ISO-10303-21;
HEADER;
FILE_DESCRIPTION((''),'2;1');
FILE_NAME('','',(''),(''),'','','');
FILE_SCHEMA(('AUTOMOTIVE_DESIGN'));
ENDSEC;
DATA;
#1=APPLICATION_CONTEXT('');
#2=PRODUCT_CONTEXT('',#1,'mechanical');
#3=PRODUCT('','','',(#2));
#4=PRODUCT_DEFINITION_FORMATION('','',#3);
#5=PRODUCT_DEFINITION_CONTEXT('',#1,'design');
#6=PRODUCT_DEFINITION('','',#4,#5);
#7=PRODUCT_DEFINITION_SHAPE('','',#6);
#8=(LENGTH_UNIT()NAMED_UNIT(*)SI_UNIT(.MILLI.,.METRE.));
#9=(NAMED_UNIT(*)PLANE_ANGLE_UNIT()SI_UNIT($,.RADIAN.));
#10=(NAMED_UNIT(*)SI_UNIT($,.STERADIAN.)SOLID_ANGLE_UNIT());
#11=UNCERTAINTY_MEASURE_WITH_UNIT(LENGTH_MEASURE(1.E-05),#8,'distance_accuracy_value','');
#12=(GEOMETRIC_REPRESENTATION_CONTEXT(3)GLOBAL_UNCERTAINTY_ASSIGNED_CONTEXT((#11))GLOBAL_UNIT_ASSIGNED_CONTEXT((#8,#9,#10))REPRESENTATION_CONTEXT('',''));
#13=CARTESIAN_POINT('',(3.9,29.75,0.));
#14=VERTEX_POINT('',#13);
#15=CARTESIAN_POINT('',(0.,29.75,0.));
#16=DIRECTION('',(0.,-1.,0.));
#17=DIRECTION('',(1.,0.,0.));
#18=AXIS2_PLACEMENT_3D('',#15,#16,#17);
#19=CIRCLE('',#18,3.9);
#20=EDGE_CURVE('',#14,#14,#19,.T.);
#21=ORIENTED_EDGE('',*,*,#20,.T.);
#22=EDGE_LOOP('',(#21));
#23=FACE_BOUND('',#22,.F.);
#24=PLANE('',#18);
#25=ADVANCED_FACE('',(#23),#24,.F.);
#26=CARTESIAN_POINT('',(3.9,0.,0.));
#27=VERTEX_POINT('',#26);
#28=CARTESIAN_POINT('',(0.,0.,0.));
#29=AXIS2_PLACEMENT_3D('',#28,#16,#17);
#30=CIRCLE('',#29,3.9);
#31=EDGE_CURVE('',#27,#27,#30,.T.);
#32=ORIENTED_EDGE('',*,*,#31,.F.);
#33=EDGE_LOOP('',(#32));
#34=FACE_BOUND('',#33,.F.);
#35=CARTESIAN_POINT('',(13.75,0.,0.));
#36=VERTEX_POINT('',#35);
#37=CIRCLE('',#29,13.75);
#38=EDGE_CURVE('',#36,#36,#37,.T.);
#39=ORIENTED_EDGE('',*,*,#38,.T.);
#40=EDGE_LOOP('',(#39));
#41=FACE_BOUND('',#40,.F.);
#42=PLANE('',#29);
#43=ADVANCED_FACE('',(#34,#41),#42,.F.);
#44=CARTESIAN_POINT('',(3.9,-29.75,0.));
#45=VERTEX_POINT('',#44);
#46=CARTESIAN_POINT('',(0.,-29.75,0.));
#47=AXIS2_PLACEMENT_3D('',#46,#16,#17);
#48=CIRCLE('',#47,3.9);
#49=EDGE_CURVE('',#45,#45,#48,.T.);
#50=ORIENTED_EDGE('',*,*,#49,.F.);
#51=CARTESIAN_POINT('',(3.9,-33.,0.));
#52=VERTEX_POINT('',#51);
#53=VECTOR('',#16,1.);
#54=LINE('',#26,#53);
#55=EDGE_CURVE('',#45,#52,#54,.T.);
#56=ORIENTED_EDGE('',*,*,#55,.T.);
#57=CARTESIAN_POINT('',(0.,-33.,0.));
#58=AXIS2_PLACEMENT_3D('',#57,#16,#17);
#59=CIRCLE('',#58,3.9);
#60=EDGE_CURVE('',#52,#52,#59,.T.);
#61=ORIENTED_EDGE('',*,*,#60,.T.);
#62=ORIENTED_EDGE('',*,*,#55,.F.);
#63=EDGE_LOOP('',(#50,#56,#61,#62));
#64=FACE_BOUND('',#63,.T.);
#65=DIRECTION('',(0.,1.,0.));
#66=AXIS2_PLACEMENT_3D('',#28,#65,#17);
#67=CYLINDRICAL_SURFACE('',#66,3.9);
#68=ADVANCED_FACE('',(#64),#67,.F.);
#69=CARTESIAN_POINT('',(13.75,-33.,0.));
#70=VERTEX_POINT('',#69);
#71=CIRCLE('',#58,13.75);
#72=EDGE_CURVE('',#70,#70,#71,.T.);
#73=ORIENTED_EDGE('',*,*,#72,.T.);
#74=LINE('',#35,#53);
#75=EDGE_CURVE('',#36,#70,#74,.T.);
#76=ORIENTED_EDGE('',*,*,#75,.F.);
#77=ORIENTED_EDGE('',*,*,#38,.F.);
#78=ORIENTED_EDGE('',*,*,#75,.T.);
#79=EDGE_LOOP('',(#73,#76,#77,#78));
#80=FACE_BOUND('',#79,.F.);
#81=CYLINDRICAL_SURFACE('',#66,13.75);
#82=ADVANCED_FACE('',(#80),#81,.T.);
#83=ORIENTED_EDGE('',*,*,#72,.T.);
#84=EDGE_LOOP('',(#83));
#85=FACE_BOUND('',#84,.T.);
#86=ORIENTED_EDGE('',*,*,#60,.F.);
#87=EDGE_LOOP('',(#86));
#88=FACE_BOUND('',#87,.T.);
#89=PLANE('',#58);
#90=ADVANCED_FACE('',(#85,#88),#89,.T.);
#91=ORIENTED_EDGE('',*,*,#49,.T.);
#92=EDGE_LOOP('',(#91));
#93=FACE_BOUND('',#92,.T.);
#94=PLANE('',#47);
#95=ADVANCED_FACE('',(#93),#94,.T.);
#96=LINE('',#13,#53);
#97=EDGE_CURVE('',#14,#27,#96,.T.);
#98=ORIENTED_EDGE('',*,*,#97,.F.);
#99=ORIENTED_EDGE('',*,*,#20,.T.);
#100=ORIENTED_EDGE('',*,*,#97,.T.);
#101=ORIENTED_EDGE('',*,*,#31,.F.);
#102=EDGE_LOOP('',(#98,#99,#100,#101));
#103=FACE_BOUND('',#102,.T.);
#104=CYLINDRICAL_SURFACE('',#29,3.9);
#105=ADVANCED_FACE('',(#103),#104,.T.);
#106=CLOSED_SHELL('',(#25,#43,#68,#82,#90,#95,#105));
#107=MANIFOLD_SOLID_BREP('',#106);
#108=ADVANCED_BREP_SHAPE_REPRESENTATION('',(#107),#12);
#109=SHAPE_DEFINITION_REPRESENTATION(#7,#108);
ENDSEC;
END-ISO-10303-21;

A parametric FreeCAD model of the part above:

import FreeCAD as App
import Part
import Sketcher

doc = App.newDocument("Part")
body = doc.addObject("PartDesign::Body", "Body")

# Sketch on XZ plane
sketch1 = body.newObject("Sketcher::SketchObject", "Sketch")
sketch1.AttachmentSupport = (doc.getObject("XZ_Plane"), [""])
sketch1.MapMode = "FlatFace"
sketch1.addGeometry(Part.Circle(App.Vector(0, 0, 0), App.Vector(0, 0, 1), 13.8), False)
sketch1.addGeometry(Part.Circle(App.Vector(0, 0, 0), App.Vector(0, 0, 1), 3.9), False)
sketch1.addConstraint(Sketcher.Constraint("Coincident", 0, 3, -1, 1))
sketch1.addConstraint(Sketcher.Constraint("Coincident", 1, 3, -1, 1))
sketch1.addConstraint(Sketcher.Constraint("Diameter", 0, 27.5))
sketch1.addConstraint(Sketcher.Constraint("Diameter", 1, 7.8))
pad1 = body.newObject("PartDesign::Pad", "Pad")
pad1.Profile = sketch1
pad1.Length = 33

# Sketch on XZ plane
sketch2 = body.newObject("Sketcher::SketchObject", "Sketch001")
sketch2.AttachmentSupport = (doc.getObject("XZ_Plane"), [""])
sketch2.MapMode = "FlatFace"
sketch2.addGeometry(Part.Circle(App.Vector(0, 0, 0), App.Vector(0, 0, 1), 3.9), False)
sketch2.addConstraint(Sketcher.Constraint("Coincident", 0, 3, -1, 1))
sketch2.addConstraint(Sketcher.Constraint("Diameter", 0, 7.8))
pad2 = body.newObject("PartDesign::Pad", "Pad001")
pad2.Profile = sketch2
pad2.Length = 59.5
pad2.Midplane = True

doc.recompute()
